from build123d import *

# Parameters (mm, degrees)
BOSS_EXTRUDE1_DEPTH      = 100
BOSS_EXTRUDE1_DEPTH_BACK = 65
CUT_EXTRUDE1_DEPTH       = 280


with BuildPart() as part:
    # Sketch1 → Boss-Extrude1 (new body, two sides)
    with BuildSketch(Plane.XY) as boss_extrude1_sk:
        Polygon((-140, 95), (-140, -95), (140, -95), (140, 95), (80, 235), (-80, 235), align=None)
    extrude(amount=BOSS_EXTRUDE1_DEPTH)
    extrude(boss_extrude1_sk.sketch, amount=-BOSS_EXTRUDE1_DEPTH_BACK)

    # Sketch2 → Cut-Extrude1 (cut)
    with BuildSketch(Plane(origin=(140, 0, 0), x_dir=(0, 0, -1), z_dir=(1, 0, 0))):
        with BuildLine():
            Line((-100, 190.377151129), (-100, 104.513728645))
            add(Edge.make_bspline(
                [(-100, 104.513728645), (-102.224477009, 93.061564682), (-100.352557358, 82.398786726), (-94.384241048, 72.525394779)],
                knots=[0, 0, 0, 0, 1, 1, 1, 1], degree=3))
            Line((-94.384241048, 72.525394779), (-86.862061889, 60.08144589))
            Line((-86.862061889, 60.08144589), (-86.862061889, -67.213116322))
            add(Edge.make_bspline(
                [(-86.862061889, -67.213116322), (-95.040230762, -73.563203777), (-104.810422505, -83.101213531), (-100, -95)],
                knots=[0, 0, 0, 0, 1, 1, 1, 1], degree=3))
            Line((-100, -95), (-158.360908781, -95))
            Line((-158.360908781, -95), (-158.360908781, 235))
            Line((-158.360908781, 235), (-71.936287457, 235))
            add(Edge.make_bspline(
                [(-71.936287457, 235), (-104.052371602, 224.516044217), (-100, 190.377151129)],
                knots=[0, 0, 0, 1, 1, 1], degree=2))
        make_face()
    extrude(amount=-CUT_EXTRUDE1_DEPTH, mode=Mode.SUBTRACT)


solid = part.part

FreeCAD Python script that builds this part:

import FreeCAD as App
import Part
import Sketcher
from FreeCAD import Vector


def add_polygon(sketch, points):
    """Adds a closed chain of lines whose ends are joined by coincident constraints."""
    first, n = sketch.GeometryCount, len(points)
    for a, b in zip(points, points[1:] + points[:1]):
        sketch.addGeometry(Part.LineSegment(App.Vector(*a, 0), App.Vector(*b, 0)), False)
    for i in range(n):
        sketch.addConstraint(Sketcher.Constraint("Coincident", first + i, 2, first + (i + 1) % n, 1))

doc = App.newDocument("Part")
body = doc.addObject("PartDesign::Body", "Body")

# Sketch on XY plane
sketch1 = body.newObject("Sketcher::SketchObject", "Sketch")
sketch1.AttachmentSupport = (doc.getObject("XY_Plane"), [""])
sketch1.MapMode = "FlatFace"
add_polygon(sketch1, [(-140, 95), (-140, -95), (140, -95), (140, 95), (80, 235), (-80, 235)])  # lines 0-5
sketch1.addConstraint([
    Sketcher.Constraint("Vertical", 0),
    Sketcher.Constraint("Horizontal", 1),
    Sketcher.Constraint("Vertical", 2),
    Sketcher.Constraint("Horizontal", 4),
    Sketcher.Constraint("Symmetric", 0, 2, 2, 2, -1, 1),
    Sketcher.Constraint("Horizontal", 2, 2, 5, 2),
    Sketcher.Constraint("Equal", 3, 5),
    Sketcher.Constraint("DistanceX", 1, 1, 1, 2, 280.0),
    Sketcher.Constraint("DistanceX", 4, 2, 4, 1, 160.0),
    Sketcher.Constraint("DistanceY", 0, 2, 0, 1, 190.0),
    Sketcher.Constraint("DistanceY", -1, 1, 3, 2, 235.0),
])
pad1 = body.newObject("PartDesign::Pad", "Pad")
pad1.Profile = sketch1
pad1.Type = "TwoLengths"
pad1.Length = 100
pad1.Length2 = 65

# Sketch on YZ plane
sketch2 = body.newObject("Sketcher::SketchObject", "Sketch001")
sketch2.AttachmentSupport = (doc.getObject("YZ_Plane"), [""])
sketch2.MapMode = "FlatFace"
sketch2.AttachmentOffset = App.Placement(Vector(0, 0, 140), App.Rotation())
sketch2.addGeometry([
    Part.LineSegment(Vector(104.513729, 100, 0), Vector(190.377151, 100, 0)),  # 0
    Part.BSplineCurve([Vector(235, 71.936287, 0), Vector(224.516044, 104.052372, 0), Vector(190.377151, 100, 0)], [3, 3], [0, 1], False, 2, [1, 1, 1], False),  # 1
    Part.LineSegment(Vector(235, 71.936287, 0), Vector(235, 158.360909, 0)),  # 2
    Part.LineSegment(Vector(235, 158.360909, 0), Vector(-95, 158.360909, 0)),  # 3
    Part.LineSegment(Vector(-95, 158.360909, 0), Vector(-95, 100, 0)),  # 4
    Part.BSplineCurve([Vector(-67.213116, 86.862062, 0), Vector(-73.563204, 95.040231, 0), Vector(-83.101214, 104.810423, 0), Vector(-95, 100, 0)], [4, 4], [0, 1], False, 3, [1, 1, 1, 1], False),  # 5
    Part.LineSegment(Vector(-67.213116, 86.862062, 0), Vector(60.081446, 86.862062, 0)),  # 6
    Part.LineSegment(Vector(60.081446, 86.862062, 0), Vector(72.525395, 94.384241, 0)),  # 7
    Part.BSplineCurve([Vector(104.513729, 100, 0), Vector(93.061565, 102.224477, 0), Vector(82.398787, 100.352557, 0), Vector(72.525395, 94.384241, 0)], [4, 4], [0, 1], False, 3, [1, 1, 1, 1], False),  # 8
], False)
sketch2.addConstraint([
    Sketcher.Constraint("Block", 1),
    Sketcher.Constraint("Block", 5),
    Sketcher.Constraint("Block", 8),
    Sketcher.Constraint("Coincident", 0, 2, 1, 2),
    Sketcher.Constraint("Coincident", 1, 1, 2, 1),
    Sketcher.Constraint("Coincident", 2, 2, 3, 1),
    Sketcher.Constraint("Coincident", 3, 2, 4, 1),
    Sketcher.Constraint("Coincident", 4, 2, 5, 2),
    Sketcher.Constraint("Coincident", 5, 1, 6, 1),
    Sketcher.Constraint("Coincident", 6, 2, 7, 1),
    Sketcher.Constraint("Coincident", 7, 2, 8, 2),
    Sketcher.Constraint("Coincident", 8, 1, 0, 1),
    Sketcher.Constraint("Vertical", 2),
    Sketcher.Constraint("Horizontal", 3),
    Sketcher.Constraint("Vertical", 4),
    Sketcher.Constraint("Horizontal", 6),
    Sketcher.Constraint("DistanceY", 2, 1, 2, 2, 86.424621),
    Sketcher.Constraint("DistanceX", 6, 1, 6, 2, 127.294562),
])
pocket1 = body.newObject("PartDesign::Pocket", "Pocket")
pocket1.Profile = sketch2
pocket1.Length = 280

doc.recompute()
